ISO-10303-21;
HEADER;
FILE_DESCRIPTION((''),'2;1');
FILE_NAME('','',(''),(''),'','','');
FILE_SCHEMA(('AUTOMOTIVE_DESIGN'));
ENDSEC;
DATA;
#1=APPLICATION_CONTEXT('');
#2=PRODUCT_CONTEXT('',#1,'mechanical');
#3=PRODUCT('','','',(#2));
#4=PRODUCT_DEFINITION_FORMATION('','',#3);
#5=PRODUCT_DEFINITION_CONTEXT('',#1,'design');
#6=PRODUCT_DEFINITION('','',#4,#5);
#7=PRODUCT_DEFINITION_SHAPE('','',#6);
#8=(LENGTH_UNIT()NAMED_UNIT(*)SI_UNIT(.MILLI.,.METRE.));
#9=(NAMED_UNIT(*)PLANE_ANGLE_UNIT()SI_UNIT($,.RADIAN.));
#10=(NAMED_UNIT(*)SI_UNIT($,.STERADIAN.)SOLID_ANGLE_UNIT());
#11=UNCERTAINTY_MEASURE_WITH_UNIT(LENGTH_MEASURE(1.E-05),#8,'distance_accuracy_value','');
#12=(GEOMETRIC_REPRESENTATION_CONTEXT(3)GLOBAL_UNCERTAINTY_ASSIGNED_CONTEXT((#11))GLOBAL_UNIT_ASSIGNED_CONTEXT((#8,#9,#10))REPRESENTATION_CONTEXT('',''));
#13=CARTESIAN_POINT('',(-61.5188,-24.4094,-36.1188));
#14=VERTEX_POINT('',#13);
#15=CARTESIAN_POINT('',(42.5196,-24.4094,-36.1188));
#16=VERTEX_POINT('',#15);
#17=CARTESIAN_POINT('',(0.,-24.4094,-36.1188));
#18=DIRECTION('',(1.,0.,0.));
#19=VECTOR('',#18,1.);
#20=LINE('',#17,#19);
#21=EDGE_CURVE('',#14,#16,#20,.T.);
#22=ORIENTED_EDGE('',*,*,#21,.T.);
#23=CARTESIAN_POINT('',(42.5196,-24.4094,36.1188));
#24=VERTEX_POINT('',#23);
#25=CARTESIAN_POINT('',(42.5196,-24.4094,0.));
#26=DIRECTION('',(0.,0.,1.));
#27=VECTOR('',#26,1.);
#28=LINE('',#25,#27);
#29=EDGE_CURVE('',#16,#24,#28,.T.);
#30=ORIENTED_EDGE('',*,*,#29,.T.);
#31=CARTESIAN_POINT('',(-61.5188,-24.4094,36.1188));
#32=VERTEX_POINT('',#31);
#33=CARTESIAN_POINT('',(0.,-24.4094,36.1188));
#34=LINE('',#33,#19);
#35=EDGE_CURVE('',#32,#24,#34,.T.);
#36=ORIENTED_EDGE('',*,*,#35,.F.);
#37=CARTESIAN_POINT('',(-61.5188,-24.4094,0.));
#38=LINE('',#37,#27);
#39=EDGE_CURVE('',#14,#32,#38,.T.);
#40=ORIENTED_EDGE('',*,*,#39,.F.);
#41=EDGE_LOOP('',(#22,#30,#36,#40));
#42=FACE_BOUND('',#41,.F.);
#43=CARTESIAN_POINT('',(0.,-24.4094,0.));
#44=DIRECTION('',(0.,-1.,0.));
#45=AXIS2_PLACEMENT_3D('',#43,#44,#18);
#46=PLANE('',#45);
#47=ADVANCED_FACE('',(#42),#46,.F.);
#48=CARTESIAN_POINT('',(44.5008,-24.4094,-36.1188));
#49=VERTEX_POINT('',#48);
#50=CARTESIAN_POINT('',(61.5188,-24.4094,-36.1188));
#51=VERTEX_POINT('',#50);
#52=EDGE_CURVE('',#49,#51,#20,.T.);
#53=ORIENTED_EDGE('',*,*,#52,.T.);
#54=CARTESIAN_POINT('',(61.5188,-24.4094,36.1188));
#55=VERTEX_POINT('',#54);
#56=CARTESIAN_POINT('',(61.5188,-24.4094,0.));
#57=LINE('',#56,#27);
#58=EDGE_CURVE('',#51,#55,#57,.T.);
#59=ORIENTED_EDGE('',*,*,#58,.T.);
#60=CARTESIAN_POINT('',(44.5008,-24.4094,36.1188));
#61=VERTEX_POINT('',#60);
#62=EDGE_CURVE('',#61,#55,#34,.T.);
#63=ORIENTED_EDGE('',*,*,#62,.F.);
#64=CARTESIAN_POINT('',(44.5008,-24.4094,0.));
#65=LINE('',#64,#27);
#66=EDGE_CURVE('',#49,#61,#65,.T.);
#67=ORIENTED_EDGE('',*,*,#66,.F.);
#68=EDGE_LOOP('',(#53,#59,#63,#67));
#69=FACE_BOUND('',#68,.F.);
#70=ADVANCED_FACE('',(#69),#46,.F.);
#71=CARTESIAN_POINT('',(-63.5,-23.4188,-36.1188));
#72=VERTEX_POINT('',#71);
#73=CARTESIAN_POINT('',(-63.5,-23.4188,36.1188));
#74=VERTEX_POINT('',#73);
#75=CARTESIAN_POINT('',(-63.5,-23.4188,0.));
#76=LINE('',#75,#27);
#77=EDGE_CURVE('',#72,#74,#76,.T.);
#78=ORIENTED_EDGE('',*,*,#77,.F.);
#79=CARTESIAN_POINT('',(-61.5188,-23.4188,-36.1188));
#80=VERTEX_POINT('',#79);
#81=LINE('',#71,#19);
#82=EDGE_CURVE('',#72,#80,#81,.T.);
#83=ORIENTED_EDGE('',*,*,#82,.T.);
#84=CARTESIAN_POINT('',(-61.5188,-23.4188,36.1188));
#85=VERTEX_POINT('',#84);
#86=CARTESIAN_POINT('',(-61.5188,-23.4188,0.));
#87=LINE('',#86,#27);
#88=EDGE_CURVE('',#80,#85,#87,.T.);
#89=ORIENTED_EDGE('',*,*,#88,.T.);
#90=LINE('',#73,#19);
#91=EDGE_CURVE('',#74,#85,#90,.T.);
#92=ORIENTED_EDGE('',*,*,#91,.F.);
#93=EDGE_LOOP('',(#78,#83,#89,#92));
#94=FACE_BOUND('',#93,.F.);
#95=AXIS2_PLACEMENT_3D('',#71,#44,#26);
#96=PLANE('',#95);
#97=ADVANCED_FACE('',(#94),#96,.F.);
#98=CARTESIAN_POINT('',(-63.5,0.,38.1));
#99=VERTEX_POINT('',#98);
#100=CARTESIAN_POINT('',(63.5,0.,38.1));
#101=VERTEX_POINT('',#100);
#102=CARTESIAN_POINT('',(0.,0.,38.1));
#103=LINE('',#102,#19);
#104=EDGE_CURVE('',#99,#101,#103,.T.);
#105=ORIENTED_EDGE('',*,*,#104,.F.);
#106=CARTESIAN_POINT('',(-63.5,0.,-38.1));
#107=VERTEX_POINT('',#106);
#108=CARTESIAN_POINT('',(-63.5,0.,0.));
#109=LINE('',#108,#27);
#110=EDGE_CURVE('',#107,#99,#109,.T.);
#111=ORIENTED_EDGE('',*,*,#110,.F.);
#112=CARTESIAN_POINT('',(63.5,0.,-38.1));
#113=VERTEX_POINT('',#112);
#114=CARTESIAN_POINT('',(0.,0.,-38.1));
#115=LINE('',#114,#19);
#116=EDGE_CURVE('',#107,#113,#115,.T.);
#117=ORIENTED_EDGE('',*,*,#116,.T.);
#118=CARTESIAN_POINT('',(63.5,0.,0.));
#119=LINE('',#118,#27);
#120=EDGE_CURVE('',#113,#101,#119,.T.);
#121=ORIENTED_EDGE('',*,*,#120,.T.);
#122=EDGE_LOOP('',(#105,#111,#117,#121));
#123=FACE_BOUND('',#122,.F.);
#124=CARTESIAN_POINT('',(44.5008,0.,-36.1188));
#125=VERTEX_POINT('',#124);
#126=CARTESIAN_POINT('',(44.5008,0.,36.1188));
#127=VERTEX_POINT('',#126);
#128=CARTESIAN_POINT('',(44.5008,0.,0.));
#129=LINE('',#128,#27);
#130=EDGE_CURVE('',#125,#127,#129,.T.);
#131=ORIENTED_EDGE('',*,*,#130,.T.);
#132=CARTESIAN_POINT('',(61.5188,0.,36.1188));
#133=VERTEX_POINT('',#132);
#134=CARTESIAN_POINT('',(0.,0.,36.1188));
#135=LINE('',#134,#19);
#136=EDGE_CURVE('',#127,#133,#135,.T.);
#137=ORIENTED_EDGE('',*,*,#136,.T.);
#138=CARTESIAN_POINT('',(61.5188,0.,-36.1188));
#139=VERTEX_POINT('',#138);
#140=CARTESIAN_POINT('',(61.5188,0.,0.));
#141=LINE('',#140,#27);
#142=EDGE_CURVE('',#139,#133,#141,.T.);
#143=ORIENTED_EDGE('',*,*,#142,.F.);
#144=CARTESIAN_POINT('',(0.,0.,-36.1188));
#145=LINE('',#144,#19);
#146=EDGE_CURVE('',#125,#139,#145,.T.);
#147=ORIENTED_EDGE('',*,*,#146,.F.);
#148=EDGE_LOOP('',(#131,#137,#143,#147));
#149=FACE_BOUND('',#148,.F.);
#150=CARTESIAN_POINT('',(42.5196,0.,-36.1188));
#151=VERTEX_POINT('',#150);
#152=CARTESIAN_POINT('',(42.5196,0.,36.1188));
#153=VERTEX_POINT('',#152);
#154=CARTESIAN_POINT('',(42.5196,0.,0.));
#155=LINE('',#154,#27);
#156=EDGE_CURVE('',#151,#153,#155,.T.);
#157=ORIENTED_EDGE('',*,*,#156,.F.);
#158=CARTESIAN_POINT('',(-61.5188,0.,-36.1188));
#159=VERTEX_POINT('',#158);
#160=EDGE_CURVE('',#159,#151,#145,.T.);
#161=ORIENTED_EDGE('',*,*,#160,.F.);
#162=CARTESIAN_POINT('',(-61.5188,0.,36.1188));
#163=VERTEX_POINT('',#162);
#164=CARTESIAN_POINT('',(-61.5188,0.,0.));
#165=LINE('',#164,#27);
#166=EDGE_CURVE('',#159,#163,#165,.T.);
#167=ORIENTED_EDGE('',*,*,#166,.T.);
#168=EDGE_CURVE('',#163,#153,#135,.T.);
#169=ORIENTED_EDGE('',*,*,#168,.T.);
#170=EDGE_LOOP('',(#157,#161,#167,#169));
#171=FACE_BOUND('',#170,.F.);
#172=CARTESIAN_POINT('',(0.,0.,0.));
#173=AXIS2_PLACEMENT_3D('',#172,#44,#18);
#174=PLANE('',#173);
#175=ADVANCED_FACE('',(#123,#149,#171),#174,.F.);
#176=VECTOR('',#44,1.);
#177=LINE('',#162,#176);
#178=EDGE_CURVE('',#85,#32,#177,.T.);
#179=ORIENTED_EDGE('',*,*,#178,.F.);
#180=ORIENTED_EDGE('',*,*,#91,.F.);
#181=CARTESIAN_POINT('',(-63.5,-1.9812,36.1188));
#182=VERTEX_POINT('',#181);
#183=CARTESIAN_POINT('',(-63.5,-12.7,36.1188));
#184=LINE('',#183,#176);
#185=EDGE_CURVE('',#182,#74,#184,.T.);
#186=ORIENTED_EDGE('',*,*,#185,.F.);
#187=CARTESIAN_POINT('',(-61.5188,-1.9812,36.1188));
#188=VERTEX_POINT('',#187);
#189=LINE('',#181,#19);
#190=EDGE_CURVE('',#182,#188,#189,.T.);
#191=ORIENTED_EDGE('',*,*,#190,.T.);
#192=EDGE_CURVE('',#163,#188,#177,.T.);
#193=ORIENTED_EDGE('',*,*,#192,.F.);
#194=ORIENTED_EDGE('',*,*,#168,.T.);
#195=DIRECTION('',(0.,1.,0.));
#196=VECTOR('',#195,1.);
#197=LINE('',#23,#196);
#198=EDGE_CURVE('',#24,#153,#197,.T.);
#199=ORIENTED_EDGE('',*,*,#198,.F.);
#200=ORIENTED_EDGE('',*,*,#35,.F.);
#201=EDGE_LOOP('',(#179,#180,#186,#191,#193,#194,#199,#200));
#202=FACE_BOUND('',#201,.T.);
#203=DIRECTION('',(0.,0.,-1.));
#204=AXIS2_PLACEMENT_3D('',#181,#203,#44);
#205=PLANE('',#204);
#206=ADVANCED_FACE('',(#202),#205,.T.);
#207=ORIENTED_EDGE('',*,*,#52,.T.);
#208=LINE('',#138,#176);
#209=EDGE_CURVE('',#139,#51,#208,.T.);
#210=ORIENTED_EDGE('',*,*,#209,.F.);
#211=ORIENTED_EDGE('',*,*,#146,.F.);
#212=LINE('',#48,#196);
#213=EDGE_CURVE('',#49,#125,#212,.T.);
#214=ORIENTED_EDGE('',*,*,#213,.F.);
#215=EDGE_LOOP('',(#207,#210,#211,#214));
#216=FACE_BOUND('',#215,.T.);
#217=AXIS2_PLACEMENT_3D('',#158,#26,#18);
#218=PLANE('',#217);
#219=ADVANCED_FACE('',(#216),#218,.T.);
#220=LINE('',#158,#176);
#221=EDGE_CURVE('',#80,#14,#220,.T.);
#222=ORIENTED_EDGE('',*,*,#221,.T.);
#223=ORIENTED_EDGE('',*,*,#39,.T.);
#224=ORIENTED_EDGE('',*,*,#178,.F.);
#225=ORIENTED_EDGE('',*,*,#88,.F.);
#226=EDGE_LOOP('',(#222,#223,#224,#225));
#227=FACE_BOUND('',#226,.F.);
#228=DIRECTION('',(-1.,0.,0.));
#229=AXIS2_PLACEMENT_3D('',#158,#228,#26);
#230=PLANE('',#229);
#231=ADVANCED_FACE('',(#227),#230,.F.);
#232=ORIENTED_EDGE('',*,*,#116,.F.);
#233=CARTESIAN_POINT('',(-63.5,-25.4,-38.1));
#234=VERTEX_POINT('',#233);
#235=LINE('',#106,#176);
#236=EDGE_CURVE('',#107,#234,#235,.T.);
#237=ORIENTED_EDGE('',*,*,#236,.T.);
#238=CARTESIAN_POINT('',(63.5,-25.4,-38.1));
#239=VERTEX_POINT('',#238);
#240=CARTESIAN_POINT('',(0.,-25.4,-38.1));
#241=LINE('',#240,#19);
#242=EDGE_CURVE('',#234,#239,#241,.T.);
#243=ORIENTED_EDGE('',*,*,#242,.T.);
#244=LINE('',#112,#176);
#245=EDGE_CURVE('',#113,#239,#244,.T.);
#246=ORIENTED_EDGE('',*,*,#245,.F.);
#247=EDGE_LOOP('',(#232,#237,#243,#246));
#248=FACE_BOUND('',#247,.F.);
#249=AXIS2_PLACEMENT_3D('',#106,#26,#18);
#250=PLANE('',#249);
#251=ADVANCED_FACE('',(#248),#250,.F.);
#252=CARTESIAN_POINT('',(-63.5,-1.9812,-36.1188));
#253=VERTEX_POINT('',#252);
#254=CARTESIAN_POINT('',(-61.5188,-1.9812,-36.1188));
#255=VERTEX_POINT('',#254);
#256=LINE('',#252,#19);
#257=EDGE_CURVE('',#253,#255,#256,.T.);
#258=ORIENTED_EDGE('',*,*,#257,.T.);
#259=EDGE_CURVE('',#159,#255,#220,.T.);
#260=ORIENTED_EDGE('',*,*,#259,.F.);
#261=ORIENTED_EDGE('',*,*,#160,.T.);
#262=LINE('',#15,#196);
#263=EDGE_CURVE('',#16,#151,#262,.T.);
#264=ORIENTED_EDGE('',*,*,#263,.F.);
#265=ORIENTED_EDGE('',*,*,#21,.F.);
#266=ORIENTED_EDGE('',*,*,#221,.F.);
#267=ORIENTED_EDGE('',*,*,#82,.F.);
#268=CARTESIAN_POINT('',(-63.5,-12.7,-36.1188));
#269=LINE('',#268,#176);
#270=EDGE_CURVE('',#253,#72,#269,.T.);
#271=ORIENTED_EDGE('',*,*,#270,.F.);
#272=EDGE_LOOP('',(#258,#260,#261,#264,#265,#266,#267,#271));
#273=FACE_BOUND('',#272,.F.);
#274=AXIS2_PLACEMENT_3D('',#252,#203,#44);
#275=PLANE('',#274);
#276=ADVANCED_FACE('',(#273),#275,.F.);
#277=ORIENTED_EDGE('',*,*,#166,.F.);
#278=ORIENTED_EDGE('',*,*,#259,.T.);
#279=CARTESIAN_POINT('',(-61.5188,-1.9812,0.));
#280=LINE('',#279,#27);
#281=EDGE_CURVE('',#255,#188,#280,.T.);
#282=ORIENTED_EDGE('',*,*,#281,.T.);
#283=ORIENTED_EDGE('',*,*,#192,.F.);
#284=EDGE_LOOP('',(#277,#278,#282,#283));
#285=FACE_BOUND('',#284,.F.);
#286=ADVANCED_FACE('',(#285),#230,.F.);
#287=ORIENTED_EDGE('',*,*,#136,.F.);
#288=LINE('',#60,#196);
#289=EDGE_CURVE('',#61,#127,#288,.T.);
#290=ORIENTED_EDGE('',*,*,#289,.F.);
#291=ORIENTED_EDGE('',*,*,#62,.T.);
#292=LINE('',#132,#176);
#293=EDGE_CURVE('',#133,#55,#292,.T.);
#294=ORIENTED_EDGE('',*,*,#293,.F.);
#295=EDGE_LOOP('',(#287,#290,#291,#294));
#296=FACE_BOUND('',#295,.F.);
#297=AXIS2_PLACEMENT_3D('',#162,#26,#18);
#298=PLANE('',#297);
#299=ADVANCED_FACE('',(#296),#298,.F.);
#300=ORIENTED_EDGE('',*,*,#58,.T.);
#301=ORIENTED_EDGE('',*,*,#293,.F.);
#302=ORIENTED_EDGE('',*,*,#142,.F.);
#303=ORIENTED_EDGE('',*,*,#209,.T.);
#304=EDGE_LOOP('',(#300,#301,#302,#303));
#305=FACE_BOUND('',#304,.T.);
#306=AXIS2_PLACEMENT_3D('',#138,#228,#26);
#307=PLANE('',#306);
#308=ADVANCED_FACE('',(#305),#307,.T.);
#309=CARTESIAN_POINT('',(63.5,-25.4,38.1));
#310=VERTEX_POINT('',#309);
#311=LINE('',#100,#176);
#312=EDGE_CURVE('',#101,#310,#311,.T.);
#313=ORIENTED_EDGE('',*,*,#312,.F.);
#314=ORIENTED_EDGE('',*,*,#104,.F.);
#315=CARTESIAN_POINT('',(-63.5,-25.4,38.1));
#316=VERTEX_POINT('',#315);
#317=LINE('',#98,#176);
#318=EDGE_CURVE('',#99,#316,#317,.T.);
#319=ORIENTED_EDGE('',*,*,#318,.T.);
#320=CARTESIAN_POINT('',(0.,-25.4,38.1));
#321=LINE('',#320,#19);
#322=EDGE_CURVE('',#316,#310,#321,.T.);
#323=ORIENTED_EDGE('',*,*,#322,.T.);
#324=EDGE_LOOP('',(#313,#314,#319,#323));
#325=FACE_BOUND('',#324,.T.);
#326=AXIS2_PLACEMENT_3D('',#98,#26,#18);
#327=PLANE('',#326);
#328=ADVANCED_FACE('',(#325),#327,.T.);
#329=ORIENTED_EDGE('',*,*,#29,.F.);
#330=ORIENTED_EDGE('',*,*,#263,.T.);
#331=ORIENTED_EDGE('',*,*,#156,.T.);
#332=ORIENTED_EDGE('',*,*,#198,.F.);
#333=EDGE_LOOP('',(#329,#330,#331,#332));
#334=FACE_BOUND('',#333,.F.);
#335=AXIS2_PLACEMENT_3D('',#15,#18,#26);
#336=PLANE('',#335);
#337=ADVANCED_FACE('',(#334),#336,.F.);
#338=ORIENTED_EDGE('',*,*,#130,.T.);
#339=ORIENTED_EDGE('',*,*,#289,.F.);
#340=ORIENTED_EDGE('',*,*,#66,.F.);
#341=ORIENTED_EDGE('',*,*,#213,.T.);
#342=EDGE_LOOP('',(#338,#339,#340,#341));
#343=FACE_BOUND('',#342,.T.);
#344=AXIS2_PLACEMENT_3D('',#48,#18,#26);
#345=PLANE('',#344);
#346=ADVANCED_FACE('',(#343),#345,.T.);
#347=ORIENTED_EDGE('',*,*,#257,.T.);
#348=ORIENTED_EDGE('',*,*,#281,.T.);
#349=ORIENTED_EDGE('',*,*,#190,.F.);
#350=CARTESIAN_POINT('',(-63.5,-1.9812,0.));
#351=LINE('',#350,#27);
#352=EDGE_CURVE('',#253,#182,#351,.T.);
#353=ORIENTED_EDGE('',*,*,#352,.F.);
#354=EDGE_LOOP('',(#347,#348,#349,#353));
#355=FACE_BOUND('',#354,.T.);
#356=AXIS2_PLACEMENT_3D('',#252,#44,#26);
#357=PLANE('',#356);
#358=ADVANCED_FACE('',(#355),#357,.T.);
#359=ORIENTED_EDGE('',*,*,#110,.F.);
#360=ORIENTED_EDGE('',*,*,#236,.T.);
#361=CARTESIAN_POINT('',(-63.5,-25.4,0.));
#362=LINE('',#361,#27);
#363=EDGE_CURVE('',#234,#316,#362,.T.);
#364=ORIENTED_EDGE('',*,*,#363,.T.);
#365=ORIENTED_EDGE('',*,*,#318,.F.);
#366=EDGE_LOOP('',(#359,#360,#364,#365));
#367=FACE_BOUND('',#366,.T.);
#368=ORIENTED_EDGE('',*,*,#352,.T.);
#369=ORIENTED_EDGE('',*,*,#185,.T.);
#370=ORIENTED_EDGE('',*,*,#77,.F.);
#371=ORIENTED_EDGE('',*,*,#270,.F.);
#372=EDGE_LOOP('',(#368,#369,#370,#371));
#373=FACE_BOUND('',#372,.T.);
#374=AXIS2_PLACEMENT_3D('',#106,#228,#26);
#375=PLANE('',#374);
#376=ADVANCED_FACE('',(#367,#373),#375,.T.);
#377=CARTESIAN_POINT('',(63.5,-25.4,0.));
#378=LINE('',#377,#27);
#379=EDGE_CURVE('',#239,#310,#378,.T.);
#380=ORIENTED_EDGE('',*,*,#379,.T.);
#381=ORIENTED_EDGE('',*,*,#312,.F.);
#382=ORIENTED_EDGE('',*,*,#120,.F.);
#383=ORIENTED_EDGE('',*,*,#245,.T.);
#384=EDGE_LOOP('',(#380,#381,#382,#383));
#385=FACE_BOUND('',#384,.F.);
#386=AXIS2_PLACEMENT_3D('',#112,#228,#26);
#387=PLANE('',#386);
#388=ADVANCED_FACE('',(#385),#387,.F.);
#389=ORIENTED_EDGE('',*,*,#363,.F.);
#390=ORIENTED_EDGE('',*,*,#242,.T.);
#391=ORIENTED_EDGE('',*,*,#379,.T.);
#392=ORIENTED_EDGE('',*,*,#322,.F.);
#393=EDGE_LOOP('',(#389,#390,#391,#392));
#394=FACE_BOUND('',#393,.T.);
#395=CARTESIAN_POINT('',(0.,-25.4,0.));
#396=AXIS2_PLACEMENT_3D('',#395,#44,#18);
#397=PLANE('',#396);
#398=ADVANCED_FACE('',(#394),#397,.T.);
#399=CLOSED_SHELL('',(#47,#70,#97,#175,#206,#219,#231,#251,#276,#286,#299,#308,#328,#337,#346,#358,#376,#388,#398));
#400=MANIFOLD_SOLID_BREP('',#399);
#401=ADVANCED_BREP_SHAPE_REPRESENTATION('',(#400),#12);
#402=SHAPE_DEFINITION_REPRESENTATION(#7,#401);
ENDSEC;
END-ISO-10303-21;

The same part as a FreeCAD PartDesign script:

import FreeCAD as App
import Part
import Sketcher
Q = App.Units.Quantity


def add_polygon(sketch, points):
    """Adds a closed chain of lines whose ends are joined by coincident constraints."""
    first, n = sketch.GeometryCount, len(points)
    for a, b in zip(points, points[1:] + points[:1]):
        sketch.addGeometry(Part.LineSegment(App.Vector(*a, 0), App.Vector(*b, 0)), False)
    for i in range(n):
        sketch.addConstraint(Sketcher.Constraint("Coincident", first + i, 2, first + (i + 1) % n, 1))

doc = App.newDocument("Part")
params = doc.addObject("Spreadsheet::Sheet", "Params")
for row, (alias, value) in enumerate([
    ("sketch1_width", "5 in"),
    ("sketch1_height", "3 in"),
    ("pad1_length", "1 in"),
    ("sketch2_width", "4.844 in"),
    ("sketch2_height", "2.844 in"),
    ("pocket1_length", "0.961 in"),
    ("sketch3_width", "0.078 in"),
    ("sketch3_height", "2.844 in"),
    ("pad2_length", "0.961 in"),
    ("sketch4_width", "0.844 in"),
    ("sketch4_height", "2.844 in"),
    ("pocket2_length", "0.078 in"),
], start=1):
    params.set(f"A{row}", alias)
    params.set(f"B{row}", "=" + value)
    params.setAlias(f"B{row}", alias)

body = doc.addObject("PartDesign::Body", "Body")

sketch1 = body.newObject("Sketcher::SketchObject", "Sketch")
sketch1.AttachmentSupport = (doc.getObject("XZ_Plane"), [""])
sketch1.MapMode = "FlatFace"
add_polygon(sketch1, [(-64, 38), (-64, -38), (64, -38), (64, 38)])
sketch1.addConstraint([
    Sketcher.Constraint("Vertical", 0),
    Sketcher.Constraint("Horizontal", 1),
    Sketcher.Constraint("Vertical", 2),
    Sketcher.Constraint("Horizontal", 3),
    Sketcher.Constraint("Symmetric", 0, 2, 2, 2, -1, 1),
    Sketcher.Constraint("DistanceX", 1, 1, 1, 2, Q("5 in")),
    Sketcher.Constraint("DistanceY", 0, 2, 0, 1, Q("3 in")),
])
sketch1.setExpression("Constraints[9]", "Params.sketch1_width")
sketch1.setExpression("Constraints[10]", "Params.sketch1_height")
pad1 = body.newObject("PartDesign::Pad", "Pad")
pad1.Profile = sketch1
pad1.setExpression("Length", "Params.pad1_length")

sketch2 = body.newObject("Sketcher::SketchObject", "Sketch001")
sketch2.AttachmentSupport = (doc.getObject("XZ_Plane"), [""])
sketch2.MapMode = "FlatFace"
add_polygon(sketch2, [(-62, 36), (-62, -36), (62, -36), (62, 36)])
sketch2.addConstraint([
    Sketcher.Constraint("Vertical", 0),
    Sketcher.Constraint("Horizontal", 1),
    Sketcher.Constraint("Vertical", 2),
    Sketcher.Constraint("Horizontal", 3),
    Sketcher.Constraint("Symmetric", 0, 2, 2, 2, -1, 1),
    Sketcher.Constraint("DistanceX", 1, 1, 1, 2, Q("4.844 in")),
    Sketcher.Constraint("DistanceY", 0, 2, 0, 1, Q("2.844 in")),
])
sketch2.setExpression("Constraints[9]", "Params.sketch2_width")
sketch2.setExpression("Constraints[10]", "Params.sketch2_height")
pocket1 = body.newObject("PartDesign::Pocket", "Pocket")
pocket1.Profile = sketch2
pocket1.setExpression("Length", "Params.pocket1_length")
pocket1.Reversed = True

sketch3 = body.newObject("Sketcher::SketchObject", "Sketch002")
sketch3.AttachmentSupport = (doc.getObject("XZ_Plane"), [""])
sketch3.MapMode = "FlatFace"
sketch3.AttachmentOffset = App.Placement(App.Vector(0, 0, 0.961 * 25.4), App.Rotation())
add_polygon(sketch3, [(44.5, 36.1), (44.5, -36.1), (42.5, -36.1), (42.5, 36.1)])
sketch3.addConstraint([
    Sketcher.Constraint("Vertical", 0),
    Sketcher.Constraint("Horizontal", 1),
    Sketcher.Constraint("Vertical", 2),
    Sketcher.Constraint("Horizontal", 3),
    Sketcher.Constraint("DistanceX", 1, 2, 1, 1, Q("0.078 in")),
    Sketcher.Constraint("DistanceY", 0, 2, 0, 1, Q("2.844 in")),
    Sketcher.Constraint("DistanceX", -1, 1, 0, 2, Q("1.752 in")),
    Sketcher.Constraint("DistanceY", 0, 2, -1, 1, Q("1.422 in")),
])
sketch3.setExpression("Constraints[8]", "Params.sketch3_width")
sketch3.setExpression("Constraints[9]", "Params.sketch3_height")
pad2 = body.newObject("PartDesign::Pad", "Pad001")
pad2.Profile = sketch3
pad2.setExpression("Length", "Params.pad2_length")
pad2.Reversed = True

sketch4 = body.newObject("Sketcher::SketchObject", "Sketch003")
sketch4.AttachmentSupport = (doc.getObject("YZ_Plane"), [""])
sketch4.MapMode = "FlatFace"
sketch4.AttachmentOffset = App.Placement(App.Vector(0, 0, -2.5 * 25.4), App.Rotation())
add_polygon(sketch4, [(-2, 36), (-2, -36), (-23, -36), (-23, 36)])
sketch4.addConstraint([
    Sketcher.Constraint("Vertical", 0),
    Sketcher.Constraint("Horizontal", 1),
    Sketcher.Constraint("Vertical", 2),
    Sketcher.Constraint("Horizontal", 3),
    Sketcher.Constraint("DistanceX", 1, 2, 1, 1, Q("0.844 in")),
    Sketcher.Constraint("DistanceY", 0, 2, 0, 1, Q("2.844 in")),
    Sketcher.Constraint("DistanceX", 0, 2, -1, 1, Q("0.078 in")),
    Sketcher.Constraint("DistanceY", 0, 2, -1, 1, Q("1.422 in")),
])
sketch4.setExpression("Constraints[8]", "Params.sketch4_width")
sketch4.setExpression("Constraints[9]", "Params.sketch4_height")
pocket2 = body.newObject("PartDesign::Pocket", "Pocket001")
pocket2.Profile = sketch4
pocket2.setExpression("Length", "Params.pocket2_length")
pocket2.Reversed = True

doc.recompute()
